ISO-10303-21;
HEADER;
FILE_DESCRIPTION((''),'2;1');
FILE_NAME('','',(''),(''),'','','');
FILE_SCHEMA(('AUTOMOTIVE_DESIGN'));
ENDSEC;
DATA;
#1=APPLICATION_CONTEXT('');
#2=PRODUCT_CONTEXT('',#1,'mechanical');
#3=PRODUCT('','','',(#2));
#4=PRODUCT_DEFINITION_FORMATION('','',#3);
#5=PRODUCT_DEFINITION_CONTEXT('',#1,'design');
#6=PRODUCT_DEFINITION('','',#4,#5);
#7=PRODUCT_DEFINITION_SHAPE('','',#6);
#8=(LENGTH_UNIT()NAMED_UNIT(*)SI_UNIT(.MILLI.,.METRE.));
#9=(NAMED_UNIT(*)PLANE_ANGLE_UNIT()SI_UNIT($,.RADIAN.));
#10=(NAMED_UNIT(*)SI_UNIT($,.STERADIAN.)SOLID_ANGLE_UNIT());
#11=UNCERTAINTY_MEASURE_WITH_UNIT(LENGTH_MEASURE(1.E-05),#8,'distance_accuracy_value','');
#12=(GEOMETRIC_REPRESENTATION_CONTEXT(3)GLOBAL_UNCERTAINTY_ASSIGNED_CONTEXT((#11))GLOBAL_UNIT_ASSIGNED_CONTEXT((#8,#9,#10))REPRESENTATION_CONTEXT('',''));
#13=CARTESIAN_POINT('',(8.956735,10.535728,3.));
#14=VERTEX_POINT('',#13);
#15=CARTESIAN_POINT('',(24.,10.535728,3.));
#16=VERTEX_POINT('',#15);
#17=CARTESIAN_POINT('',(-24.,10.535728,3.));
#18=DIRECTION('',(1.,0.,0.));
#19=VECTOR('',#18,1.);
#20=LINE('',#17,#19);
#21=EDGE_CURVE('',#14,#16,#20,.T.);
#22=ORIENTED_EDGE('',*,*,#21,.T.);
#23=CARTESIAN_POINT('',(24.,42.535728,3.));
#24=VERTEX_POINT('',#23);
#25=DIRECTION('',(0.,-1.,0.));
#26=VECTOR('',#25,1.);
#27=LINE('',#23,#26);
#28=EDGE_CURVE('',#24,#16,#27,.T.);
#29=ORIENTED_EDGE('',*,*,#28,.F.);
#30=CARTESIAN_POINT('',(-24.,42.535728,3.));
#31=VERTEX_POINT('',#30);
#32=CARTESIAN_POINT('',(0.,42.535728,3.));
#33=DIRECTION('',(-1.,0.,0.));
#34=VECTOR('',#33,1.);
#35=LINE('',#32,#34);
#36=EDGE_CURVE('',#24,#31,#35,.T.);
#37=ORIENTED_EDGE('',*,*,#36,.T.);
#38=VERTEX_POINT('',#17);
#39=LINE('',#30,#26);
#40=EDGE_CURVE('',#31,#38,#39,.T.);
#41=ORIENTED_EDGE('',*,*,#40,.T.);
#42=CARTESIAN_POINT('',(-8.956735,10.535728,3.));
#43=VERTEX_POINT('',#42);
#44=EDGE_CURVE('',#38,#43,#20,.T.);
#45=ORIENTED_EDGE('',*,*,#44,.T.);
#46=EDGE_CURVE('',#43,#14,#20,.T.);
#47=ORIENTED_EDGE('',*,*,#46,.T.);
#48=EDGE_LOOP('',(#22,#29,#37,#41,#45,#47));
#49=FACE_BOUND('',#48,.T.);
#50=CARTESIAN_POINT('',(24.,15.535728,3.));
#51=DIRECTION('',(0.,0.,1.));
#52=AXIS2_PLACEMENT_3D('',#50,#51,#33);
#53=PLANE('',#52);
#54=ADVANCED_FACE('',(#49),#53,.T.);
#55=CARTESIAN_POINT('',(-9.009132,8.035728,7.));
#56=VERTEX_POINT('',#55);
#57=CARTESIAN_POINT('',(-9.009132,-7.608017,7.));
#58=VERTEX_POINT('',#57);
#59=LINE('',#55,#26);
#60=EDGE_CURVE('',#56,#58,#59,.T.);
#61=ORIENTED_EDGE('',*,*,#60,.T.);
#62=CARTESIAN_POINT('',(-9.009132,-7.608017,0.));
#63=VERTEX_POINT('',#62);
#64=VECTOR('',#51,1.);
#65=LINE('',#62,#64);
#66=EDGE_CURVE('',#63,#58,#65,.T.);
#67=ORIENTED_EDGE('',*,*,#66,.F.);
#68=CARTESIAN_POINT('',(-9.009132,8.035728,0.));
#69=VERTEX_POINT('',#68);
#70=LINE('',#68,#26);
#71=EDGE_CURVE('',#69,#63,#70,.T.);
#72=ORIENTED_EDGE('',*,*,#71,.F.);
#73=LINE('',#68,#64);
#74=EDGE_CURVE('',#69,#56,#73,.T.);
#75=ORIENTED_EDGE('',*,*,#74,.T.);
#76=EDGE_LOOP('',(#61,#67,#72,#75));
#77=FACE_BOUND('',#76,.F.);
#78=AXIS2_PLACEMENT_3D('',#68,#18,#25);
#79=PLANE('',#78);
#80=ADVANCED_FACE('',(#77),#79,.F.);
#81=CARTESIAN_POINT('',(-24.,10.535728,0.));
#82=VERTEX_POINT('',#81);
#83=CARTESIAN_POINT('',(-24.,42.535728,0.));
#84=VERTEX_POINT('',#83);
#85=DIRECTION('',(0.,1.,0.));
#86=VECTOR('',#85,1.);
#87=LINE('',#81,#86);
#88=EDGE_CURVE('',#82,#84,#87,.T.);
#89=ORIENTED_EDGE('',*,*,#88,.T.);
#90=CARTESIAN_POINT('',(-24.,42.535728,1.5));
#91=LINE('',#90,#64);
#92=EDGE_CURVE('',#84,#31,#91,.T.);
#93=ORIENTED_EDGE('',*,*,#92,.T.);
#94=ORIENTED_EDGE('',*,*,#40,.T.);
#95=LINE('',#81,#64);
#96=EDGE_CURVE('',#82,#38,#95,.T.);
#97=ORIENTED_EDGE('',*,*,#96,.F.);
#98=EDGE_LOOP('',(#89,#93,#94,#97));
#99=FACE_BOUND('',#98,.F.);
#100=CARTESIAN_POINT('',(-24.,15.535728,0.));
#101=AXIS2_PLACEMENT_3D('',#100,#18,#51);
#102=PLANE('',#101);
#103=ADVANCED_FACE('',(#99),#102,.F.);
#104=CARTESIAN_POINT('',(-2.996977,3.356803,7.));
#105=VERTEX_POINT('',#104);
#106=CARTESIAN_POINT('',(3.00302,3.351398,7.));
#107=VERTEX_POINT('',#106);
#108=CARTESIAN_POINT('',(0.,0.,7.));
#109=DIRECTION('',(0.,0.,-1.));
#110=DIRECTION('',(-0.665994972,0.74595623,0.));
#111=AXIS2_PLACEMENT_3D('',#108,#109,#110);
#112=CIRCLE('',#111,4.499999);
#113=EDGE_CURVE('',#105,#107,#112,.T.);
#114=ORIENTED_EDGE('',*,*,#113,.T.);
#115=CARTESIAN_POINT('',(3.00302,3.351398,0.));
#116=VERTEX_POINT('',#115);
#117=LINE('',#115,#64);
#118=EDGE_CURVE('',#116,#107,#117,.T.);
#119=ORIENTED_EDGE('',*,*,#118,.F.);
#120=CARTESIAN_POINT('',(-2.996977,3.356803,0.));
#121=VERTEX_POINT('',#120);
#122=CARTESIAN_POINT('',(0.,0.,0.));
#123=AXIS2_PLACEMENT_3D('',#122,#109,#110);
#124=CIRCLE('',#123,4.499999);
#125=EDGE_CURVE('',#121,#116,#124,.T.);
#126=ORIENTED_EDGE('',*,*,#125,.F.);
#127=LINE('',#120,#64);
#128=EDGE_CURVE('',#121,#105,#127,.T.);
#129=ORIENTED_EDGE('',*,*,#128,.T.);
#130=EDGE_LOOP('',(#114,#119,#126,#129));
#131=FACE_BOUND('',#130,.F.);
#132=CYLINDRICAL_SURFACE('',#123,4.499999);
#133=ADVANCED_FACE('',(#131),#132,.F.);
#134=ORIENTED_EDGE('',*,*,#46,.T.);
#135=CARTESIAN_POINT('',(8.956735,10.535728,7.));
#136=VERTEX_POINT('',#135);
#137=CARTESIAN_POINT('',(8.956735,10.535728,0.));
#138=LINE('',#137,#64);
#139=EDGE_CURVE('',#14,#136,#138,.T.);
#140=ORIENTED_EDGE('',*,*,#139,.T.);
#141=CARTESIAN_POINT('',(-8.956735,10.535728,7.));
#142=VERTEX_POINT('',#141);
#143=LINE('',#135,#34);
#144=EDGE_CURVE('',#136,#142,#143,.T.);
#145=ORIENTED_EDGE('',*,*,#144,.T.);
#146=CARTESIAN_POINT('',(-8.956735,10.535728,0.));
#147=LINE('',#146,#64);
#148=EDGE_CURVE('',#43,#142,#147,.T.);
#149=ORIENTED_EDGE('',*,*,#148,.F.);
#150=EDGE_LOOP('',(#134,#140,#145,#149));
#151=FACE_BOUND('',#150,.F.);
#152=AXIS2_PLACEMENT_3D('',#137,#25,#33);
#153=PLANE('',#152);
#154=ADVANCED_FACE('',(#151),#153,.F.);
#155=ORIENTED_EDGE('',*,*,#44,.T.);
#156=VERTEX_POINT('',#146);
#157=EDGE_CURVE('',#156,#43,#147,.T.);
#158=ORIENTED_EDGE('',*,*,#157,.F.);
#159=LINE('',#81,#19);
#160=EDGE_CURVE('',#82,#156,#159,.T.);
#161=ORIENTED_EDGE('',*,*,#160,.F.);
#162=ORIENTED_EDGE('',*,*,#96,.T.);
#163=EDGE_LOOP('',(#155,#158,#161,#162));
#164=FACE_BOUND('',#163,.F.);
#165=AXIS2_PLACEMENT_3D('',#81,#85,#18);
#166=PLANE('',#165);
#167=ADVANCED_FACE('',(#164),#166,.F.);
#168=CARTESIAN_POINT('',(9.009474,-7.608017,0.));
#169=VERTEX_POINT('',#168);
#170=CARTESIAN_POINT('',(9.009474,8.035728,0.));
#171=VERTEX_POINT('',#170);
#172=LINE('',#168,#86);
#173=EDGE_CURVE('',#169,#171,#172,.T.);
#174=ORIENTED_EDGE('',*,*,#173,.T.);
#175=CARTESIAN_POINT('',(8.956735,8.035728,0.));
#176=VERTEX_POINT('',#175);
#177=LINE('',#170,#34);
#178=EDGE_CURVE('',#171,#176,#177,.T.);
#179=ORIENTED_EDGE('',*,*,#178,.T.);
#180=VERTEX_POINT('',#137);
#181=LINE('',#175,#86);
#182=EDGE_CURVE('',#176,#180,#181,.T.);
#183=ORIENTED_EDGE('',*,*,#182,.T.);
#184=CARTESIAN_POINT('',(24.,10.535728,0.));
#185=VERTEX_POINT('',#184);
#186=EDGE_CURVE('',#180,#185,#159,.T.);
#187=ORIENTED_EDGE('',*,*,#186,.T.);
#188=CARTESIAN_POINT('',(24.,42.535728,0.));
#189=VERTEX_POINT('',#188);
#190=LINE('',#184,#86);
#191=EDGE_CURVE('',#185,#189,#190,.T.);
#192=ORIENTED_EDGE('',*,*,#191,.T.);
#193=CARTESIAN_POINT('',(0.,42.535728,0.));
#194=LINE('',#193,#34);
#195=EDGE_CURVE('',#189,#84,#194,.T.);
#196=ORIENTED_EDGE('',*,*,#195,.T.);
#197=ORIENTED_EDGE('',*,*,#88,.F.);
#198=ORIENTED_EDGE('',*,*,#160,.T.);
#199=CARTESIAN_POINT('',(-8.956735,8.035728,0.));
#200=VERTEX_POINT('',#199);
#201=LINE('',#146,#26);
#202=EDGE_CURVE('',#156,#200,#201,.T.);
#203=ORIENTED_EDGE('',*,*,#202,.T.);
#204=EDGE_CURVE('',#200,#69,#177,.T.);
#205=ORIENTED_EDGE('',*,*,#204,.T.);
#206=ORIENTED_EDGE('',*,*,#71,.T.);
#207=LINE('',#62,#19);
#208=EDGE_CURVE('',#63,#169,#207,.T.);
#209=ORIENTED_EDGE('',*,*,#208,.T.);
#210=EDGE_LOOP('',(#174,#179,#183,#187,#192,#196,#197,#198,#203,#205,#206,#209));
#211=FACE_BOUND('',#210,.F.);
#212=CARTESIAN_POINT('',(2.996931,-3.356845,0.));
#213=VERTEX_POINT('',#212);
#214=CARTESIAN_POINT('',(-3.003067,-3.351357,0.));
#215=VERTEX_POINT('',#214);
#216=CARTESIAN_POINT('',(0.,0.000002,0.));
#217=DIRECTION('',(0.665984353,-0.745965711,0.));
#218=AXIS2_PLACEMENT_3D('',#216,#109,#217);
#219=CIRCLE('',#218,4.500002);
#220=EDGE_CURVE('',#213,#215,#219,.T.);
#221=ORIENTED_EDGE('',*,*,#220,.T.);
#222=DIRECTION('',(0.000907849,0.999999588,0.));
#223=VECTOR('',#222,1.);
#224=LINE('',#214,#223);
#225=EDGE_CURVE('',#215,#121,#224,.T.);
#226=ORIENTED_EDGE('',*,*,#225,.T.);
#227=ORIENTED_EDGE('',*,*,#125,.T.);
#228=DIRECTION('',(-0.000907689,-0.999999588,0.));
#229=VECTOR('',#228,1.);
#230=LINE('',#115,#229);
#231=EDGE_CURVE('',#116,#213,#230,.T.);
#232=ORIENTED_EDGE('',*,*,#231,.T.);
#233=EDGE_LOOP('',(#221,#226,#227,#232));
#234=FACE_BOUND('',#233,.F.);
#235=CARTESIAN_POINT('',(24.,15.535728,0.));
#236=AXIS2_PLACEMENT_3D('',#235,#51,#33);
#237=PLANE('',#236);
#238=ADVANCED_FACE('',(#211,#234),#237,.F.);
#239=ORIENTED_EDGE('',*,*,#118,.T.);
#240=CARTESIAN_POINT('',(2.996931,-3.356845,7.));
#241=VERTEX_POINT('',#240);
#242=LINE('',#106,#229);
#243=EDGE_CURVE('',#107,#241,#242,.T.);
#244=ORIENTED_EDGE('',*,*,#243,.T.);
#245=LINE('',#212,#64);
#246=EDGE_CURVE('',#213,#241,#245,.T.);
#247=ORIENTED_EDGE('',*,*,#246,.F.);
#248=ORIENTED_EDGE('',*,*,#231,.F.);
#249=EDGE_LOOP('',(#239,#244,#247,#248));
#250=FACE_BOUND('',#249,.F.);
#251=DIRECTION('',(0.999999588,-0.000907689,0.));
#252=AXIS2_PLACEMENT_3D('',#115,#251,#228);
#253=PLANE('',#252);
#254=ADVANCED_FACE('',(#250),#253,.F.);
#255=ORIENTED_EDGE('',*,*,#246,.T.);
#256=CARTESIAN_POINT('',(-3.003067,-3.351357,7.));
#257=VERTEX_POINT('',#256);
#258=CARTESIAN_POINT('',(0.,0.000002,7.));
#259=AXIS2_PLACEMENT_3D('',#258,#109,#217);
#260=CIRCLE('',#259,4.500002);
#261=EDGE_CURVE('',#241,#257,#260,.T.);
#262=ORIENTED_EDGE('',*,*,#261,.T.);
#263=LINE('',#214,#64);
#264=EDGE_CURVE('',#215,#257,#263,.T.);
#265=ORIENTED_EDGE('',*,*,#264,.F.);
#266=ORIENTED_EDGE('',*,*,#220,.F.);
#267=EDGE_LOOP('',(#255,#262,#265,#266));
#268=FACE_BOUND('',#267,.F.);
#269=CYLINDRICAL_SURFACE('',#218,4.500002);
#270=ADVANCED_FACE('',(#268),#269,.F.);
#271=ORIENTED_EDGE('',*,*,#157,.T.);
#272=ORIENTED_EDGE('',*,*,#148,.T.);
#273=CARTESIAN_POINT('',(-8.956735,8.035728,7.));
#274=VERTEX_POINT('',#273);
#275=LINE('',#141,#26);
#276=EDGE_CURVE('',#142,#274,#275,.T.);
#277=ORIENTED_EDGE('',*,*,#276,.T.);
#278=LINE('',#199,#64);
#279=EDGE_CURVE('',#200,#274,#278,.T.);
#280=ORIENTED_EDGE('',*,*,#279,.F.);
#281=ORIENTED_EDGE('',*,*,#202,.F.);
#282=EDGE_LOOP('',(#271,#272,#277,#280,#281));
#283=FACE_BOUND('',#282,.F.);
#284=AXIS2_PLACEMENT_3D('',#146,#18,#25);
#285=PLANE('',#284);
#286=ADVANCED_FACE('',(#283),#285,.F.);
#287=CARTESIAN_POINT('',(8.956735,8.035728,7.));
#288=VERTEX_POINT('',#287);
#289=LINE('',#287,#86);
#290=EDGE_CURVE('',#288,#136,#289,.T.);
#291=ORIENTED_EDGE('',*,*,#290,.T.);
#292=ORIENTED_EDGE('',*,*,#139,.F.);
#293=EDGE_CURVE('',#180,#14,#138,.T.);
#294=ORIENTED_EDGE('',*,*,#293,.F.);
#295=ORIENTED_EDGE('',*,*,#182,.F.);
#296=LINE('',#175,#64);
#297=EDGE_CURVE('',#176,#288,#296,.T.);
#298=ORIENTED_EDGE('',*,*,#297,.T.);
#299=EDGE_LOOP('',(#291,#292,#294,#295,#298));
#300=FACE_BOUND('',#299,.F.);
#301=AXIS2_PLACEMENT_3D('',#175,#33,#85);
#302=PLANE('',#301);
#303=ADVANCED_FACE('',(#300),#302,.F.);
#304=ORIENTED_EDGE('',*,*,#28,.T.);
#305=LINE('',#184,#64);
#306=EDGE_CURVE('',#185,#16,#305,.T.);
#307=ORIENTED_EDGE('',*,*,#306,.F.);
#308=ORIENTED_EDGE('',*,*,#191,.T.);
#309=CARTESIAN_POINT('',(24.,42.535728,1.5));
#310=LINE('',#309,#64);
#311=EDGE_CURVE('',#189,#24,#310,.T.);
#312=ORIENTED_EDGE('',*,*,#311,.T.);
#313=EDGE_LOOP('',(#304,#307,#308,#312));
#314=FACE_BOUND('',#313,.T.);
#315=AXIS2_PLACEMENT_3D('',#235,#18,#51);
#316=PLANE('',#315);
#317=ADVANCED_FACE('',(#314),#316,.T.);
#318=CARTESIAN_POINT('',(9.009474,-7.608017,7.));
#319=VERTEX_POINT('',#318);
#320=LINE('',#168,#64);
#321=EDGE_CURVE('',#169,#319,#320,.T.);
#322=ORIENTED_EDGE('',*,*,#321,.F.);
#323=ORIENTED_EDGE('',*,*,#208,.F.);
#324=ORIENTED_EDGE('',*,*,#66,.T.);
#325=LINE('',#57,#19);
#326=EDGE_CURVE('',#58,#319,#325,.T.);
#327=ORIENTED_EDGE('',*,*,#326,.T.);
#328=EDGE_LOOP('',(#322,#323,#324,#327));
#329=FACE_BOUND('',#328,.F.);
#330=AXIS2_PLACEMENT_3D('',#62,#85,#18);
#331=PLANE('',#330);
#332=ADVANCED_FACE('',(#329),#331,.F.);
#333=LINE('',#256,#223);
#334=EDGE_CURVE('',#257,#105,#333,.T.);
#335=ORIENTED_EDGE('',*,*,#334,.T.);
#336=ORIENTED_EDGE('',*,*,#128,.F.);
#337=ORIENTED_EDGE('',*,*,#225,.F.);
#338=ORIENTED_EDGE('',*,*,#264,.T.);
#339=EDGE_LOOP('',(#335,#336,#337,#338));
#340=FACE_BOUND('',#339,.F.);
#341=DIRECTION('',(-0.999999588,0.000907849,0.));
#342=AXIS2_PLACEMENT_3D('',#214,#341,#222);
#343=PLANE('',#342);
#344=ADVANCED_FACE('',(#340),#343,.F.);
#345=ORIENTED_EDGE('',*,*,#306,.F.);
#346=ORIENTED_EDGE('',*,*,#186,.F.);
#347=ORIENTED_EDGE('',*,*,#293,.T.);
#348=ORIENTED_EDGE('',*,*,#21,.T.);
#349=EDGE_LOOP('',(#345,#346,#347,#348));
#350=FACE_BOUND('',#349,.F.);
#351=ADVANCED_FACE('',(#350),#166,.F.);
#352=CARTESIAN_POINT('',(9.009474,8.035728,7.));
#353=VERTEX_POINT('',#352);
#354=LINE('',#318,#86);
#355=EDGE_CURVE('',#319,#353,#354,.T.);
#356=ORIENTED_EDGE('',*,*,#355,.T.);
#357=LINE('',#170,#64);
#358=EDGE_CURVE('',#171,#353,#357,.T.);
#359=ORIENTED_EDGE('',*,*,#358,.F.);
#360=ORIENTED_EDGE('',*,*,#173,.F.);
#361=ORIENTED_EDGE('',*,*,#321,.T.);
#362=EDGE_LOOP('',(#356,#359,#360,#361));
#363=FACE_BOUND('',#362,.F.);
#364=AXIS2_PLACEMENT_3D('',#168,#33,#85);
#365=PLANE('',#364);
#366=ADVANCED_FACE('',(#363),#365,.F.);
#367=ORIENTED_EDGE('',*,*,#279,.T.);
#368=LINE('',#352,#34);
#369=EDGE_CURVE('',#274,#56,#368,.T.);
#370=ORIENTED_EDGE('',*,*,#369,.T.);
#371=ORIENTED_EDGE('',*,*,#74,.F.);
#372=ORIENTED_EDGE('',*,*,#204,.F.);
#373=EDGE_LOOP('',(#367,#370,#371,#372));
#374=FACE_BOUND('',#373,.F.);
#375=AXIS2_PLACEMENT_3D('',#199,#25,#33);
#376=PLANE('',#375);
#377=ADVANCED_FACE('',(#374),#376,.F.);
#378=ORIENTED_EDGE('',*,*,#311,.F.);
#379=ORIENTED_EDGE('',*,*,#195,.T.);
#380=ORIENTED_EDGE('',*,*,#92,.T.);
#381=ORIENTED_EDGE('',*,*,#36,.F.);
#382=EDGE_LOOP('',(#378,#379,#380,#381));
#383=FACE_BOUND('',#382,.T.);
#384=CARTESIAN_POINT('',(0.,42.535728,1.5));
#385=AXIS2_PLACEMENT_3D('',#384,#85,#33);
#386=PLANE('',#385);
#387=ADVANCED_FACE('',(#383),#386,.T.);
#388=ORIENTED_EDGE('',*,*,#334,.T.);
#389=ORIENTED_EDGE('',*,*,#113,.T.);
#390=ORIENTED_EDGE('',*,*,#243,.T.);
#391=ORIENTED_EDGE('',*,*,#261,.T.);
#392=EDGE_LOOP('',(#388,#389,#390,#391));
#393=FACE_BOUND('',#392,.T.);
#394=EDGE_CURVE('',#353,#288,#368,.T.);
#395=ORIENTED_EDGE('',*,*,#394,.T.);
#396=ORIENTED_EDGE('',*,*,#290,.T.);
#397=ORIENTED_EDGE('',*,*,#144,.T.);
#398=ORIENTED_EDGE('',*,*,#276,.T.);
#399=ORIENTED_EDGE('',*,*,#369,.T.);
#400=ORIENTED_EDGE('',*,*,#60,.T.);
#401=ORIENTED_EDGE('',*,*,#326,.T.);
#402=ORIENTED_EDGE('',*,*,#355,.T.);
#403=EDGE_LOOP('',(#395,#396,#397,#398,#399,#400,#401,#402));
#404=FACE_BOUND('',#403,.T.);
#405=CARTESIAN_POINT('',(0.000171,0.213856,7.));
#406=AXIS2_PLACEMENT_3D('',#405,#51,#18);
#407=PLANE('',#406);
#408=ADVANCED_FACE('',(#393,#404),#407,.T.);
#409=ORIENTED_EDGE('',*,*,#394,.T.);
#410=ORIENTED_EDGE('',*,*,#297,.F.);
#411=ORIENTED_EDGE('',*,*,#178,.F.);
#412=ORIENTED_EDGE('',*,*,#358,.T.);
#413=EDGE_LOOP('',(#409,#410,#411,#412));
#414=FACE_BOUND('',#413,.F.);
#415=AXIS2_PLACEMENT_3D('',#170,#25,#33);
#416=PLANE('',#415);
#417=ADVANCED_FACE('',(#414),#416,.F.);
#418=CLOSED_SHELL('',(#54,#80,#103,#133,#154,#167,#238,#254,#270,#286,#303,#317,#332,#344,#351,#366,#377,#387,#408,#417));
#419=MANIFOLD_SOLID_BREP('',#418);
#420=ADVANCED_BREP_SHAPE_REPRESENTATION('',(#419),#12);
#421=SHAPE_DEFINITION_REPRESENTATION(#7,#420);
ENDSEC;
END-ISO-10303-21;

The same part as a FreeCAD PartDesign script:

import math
import FreeCAD as App
import Part
import Sketcher
from FreeCAD import Vector
Q = App.Units.Quantity


def add_polygon(sketch, points):
    """Adds a closed chain of lines whose ends are joined by coincident constraints."""
    first, n = sketch.GeometryCount, len(points)
    for a, b in zip(points, points[1:] + points[:1]):
        sketch.addGeometry(Part.LineSegment(App.Vector(*a, 0), App.Vector(*b, 0)), False)
    for i in range(n):
        sketch.addConstraint(Sketcher.Constraint("Coincident", first + i, 2, first + (i + 1) % n, 1))

doc = App.newDocument("Part")
params = doc.addObject("Spreadsheet::Sheet", "Params")
for row, (alias, value) in enumerate([
    ("sketch1_radius", "4.499999 mm"),
    ("sketch1_height", "2.5 mm"),
    ("pad1_length", "7 mm"),
    ("sketch2_width", "48 mm"),
    ("sketch2_height", "5 mm"),
    ("pad2_length", "3 mm"),
    ("sketch3_width", "48 mm"),
    ("sketch3_height", "3 mm"),
    ("pad3_length", "27 mm"),
], start=1):
    params.set(f"A{row}", alias)
    params.set(f"B{row}", "=" + value)
    params.setAlias(f"B{row}", alias)

body = doc.addObject("PartDesign::Body", "Body")

sketch1 = body.newObject("Sketcher::SketchObject", "Sketch")
sketch1.AttachmentSupport = (doc.getObject("XY_Plane"), [""])
sketch1.MapMode = "FlatFace"
add_polygon(sketch1, [(-9.009132, 8.035728), (-9.009132, -7.608017), (9.009474, -7.608017), (9.009474, 8.035728), (8.956735, 8.035728), (8.956735, 10.535728), (-8.956735, 10.535728), (-8.956735, 8.035728)])
sketch1.addGeometry(Part.ArcOfCircle(Part.Circle(Vector(0, 0, 0), Vector(0, 0, 1), 4.499999), math.radians(48.13807), math.radians(131.758702)), False)
sketch1.addGeometry(Part.LineSegment(Vector(3.00302, 3.351398, 0), Vector(2.996931, -3.356845, 0)), False)
sketch1.addGeometry(Part.ArcOfCircle(Part.Circle(Vector(0, 0.000002, 0), Vector(0, 0, 1), 4.500002), math.radians(-131.8627), math.radians(-48.242113)), False)
sketch1.addGeometry(Part.LineSegment(Vector(-3.003067, -3.351357, 0), Vector(-2.996977, 3.356803, 0)), False)
sketch1.addConstraint(Sketcher.Constraint("Coincident", 8, 1, 9, 1))
sketch1.addConstraint(Sketcher.Constraint("Coincident", 9, 2, 10, 2))
sketch1.addConstraint(Sketcher.Constraint("Coincident", 10, 1, 11, 1))
sketch1.addConstraint(Sketcher.Constraint("Coincident", 11, 2, 8, 2))
sketch1.addConstraint(Sketcher.Constraint("Vertical", 0))
sketch1.addConstraint(Sketcher.Constraint("Horizontal", 1))
sketch1.addConstraint(Sketcher.Constraint("Vertical", 2))
sketch1.addConstraint(Sketcher.Constraint("Horizontal", 3))
sketch1.addConstraint(Sketcher.Constraint("Vertical", 4))
sketch1.addConstraint(Sketcher.Constraint("Horizontal", 5))
sketch1.addConstraint(Sketcher.Constraint("Vertical", 6))
sketch1.addConstraint(Sketcher.Constraint("Horizontal", 7))
sketch1.addConstraint(Sketcher.Constraint("Coincident", 8, 3, -1, 1))
sketch1.addConstraint(Sketcher.Constraint("Coincident", 10, 3, -1, 1))
sketch1.addConstraint(Sketcher.Constraint("Symmetric", 3, 2, 6, 2, -2))
sketch1.addConstraint(Sketcher.Constraint("Parallel", 9, 11))
sketch1.addConstraint(Sketcher.Constraint("Radius", 8, Q("4.499999 mm")))
sketch1.addConstraint(Sketcher.Constraint("DistanceY", 4, 1, 4, 2, Q("2.5 mm")))
sketch1.addConstraint(Sketcher.Constraint("Radius", 10, Q("4.500002 mm")))
sketch1.addConstraint(Sketcher.Constraint("DistanceX", 3, 2, 3, 1, Q("0.052739 mm")))
sketch1.addConstraint(Sketcher.Constraint("DistanceX", 5, 2, 5, 1, Q("17.91347 mm")))
sketch1.addConstraint(Sketcher.Constraint("DistanceY", -1, 1, 8, 1, Q("3.351398 mm")))
sketch1.addConstraint(Sketcher.Constraint("DistanceY", 10, 3, 11, 2, Q("3.356801 mm")))
sketch1.addConstraint(Sketcher.Constraint("DistanceX", 1, 1, 1, 2, Q("18.018606 mm")))
sketch1.addConstraint(Sketcher.Constraint("DistanceY", 0, 2, 0, 1, Q("15.643745 mm")))
sketch1.addConstraint(Sketcher.Constraint("DistanceY", -1, 1, 2, 2, Q("8.035728 mm")))
sketch1.addConstraint(Sketcher.Constraint("DistanceX", -1, 1, 9, 2, Q("2.996931 mm")))
sketch1.setExpression("Constraints[24]", "Params.sketch1_radius")
sketch1.setExpression("Constraints[25]", "Params.sketch1_height")
pad1 = body.newObject("PartDesign::Pad", "Pad")
pad1.Profile = sketch1
pad1.setExpression("Length", "Params.pad1_length")

sketch2 = body.newObject("Sketcher::SketchObject", "Sketch001")
sketch2.AttachmentSupport = (doc.getObject("XY_Plane"), [""])
sketch2.MapMode = "FlatFace"
add_polygon(sketch2, [(-24, 10.535728), (24, 10.535728), (24, 15.535728), (-24, 15.535728)])
sketch2.addConstraint(Sketcher.Constraint("Horizontal", 0))
sketch2.addConstraint(Sketcher.Constraint("Vertical", 1))
sketch2.addConstraint(Sketcher.Constraint("Horizontal", 2))
sketch2.addConstraint(Sketcher.Constraint("Vertical", 3))
sketch2.addConstraint(Sketcher.Constraint("DistanceX", 0, 1, 0, 2, Q("48 mm")))
sketch2.addConstraint(Sketcher.Constraint("DistanceY", 1, 1, 1, 2, Q("5 mm")))
sketch2.addConstraint(Sketcher.Constraint("DistanceX", -1, 1, 0, 2, Q("24 mm")))
sketch2.addConstraint(Sketcher.Constraint("DistanceY", -1, 1, 0, 2, Q("10.535728 mm")))
sketch2.setExpression("Constraints[8]", "Params.sketch2_width")
sketch2.setExpression("Constraints[9]", "Params.sketch2_height")
pad2 = body.newObject("PartDesign::Pad", "Pad001")
pad2.Profile = sketch2
pad2.setExpression("Length", "Params.pad2_length")

sketch3 = body.newObject("Sketcher::SketchObject", "Sketch002")
sketch3.AttachmentSupport = (doc.getObject("XZ_Plane"), [""])
sketch3.MapMode = "FlatFace"
sketch3.AttachmentOffset = App.Placement(Vector(0, 0, -15.535728), App.Rotation())
add_polygon(sketch3, [(24, 3), (24, 0), (-24, 0), (-24, 3)])
sketch3.addConstraint(Sketcher.Constraint("Vertical", 0))
sketch3.addConstraint(Sketcher.Constraint("Horizontal", 1))
sketch3.addConstraint(Sketcher.Constraint("Vertical", 2))
sketch3.addConstraint(Sketcher.Constraint("Horizontal", 3))
sketch3.addConstraint(Sketcher.Constraint("Symmetric", 0, 2, 1, 2, -1, 1))
sketch3.addConstraint(Sketcher.Constraint("DistanceX", 1, 2, 1, 1, Q("48 mm")))
sketch3.addConstraint(Sketcher.Constraint("DistanceY", 0, 2, 0, 1, Q("3 mm")))
sketch3.setExpression("Constraints[9]", "Params.sketch3_width")
sketch3.setExpression("Constraints[10]", "Params.sketch3_height")
pad3 = body.newObject("PartDesign::Pad", "Pad002")
pad3.Profile = sketch3
pad3.setExpression("Length", "Params.pad3_length")
pad3.Reversed = True

doc.recompute()
